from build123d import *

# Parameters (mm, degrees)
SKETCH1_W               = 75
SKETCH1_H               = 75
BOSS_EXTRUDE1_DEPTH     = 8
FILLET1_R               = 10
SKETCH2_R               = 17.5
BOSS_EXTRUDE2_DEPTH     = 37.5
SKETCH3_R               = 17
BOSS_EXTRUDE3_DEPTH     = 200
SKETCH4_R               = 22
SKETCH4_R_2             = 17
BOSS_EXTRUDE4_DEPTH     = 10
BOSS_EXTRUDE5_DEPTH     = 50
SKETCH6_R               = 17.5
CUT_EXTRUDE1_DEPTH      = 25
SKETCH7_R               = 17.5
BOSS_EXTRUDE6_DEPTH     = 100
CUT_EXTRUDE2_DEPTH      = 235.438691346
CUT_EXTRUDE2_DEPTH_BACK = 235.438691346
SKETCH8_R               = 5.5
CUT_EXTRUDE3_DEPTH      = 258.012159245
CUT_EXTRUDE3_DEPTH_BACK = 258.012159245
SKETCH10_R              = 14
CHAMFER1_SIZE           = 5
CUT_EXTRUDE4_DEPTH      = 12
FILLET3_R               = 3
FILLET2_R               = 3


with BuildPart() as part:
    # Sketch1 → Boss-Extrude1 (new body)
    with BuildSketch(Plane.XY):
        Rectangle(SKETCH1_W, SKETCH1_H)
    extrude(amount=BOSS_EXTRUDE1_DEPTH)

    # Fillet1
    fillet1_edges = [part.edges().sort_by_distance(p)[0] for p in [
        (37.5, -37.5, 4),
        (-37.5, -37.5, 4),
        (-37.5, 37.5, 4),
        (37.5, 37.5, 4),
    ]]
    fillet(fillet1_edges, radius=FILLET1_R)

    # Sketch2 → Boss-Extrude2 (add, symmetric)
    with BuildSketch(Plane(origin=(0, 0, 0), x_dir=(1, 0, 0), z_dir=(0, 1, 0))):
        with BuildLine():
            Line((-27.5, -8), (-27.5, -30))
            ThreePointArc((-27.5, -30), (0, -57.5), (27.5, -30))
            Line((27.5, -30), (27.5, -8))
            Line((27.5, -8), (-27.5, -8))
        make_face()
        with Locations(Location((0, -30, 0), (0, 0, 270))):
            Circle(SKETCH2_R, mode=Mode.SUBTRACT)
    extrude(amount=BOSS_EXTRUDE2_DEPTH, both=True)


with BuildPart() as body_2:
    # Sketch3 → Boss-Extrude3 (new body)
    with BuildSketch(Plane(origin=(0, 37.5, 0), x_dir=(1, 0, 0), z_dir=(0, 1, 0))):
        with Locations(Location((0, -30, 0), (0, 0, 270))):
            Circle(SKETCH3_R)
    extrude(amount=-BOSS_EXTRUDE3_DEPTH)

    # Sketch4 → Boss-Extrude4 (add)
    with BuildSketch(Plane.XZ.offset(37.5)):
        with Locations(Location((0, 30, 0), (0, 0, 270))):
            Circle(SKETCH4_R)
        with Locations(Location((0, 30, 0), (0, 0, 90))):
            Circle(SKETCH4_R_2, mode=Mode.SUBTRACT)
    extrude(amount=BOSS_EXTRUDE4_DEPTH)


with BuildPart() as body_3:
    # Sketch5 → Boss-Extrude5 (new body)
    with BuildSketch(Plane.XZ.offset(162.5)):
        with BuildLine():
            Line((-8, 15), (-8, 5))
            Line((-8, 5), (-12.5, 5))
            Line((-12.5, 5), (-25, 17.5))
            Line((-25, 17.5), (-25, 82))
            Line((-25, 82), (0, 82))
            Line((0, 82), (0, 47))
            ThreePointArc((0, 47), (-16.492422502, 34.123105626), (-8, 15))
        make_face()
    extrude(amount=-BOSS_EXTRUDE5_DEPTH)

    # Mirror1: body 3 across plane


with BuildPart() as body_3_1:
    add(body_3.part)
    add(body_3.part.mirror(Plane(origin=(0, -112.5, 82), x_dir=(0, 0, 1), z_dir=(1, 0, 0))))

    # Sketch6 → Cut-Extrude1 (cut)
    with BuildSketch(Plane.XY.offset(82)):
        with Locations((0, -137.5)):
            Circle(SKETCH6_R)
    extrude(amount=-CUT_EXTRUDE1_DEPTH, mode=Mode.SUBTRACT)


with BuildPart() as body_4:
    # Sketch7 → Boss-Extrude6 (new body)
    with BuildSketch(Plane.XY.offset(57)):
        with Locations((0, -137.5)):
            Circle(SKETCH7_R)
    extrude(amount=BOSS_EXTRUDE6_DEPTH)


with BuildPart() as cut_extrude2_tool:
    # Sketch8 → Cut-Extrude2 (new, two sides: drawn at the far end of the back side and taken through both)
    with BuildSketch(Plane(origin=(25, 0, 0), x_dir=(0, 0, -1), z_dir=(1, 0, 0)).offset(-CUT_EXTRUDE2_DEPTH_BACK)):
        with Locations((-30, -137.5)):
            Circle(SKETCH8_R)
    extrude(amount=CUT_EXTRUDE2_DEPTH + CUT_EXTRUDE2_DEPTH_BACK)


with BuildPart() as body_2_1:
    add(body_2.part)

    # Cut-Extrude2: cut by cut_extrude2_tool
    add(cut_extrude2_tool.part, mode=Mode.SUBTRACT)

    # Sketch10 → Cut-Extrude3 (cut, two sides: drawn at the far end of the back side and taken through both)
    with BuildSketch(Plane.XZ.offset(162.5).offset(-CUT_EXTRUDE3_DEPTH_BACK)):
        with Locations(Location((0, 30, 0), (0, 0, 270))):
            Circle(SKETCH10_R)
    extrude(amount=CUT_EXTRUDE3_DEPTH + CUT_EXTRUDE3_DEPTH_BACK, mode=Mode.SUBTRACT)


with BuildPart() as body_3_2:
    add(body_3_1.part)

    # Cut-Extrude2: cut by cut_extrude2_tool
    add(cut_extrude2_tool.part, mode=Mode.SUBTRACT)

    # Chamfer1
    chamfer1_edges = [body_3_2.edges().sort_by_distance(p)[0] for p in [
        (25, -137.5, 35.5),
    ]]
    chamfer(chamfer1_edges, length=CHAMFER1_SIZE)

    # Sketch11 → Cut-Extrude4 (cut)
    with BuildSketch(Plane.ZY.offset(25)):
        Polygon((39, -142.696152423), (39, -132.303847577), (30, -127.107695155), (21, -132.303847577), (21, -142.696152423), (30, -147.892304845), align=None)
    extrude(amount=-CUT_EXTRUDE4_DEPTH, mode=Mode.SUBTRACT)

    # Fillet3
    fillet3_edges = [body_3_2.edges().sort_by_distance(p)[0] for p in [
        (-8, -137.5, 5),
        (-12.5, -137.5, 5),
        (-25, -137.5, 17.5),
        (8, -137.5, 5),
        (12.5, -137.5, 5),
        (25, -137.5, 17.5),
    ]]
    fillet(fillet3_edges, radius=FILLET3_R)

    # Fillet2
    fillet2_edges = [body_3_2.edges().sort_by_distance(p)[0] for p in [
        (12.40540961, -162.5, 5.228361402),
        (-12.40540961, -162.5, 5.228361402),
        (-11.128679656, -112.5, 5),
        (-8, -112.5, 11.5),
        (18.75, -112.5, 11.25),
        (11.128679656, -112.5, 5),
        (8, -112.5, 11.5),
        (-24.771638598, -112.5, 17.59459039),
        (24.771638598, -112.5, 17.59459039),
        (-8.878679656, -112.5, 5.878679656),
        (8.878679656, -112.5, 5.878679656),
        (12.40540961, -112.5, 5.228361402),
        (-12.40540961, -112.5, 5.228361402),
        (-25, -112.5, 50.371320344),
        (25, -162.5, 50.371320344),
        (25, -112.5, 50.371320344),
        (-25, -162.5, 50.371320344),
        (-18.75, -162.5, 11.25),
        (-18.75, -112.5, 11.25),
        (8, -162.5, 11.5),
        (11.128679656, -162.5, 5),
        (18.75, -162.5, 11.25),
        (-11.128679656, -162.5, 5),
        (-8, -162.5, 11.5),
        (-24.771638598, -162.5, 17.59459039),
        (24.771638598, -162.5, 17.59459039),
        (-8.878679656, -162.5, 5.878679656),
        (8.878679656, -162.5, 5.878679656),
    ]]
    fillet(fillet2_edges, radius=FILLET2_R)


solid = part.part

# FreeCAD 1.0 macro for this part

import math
import FreeCAD as App
import Part
import Sketcher
Q = App.Units.Quantity


def edges_at(feature, points):
    """Names of the edges that pass closest to the given points."""
    edges = feature.Shape.Edges
    near = lambda p: min(range(len(edges)), key=lambda i: edges[i].distToShape(Part.Vertex(*p))[0])
    return sorted({f"Edge{near(p) + 1}" for p in points})


def add_polygon(sketch, points):
    """Adds a closed chain of lines whose ends are joined by coincident constraints."""
    first, n = sketch.GeometryCount, len(points)
    for a, b in zip(points, points[1:] + points[:1]):
        sketch.addGeometry(Part.LineSegment(App.Vector(*a, 0), App.Vector(*b, 0)), False)
    for i in range(n):
        sketch.addConstraint(Sketcher.Constraint("Coincident", first + i, 2, first + (i + 1) % n, 1))

doc = App.newDocument("Part")
body = doc.addObject("PartDesign::Body", "Body")

# Sketch on XY plane
sketch1 = doc.addObject("Sketcher::SketchObject", "Sketch")
body.addObject(sketch1)
sketch1.AttachmentSupport = (doc.XY_Plane, [""])
sketch1.MapMode = "FlatFace"
add_polygon(sketch1, [(-37.5, 37.5), (-37.5, -37.5), (37.5, -37.5), (37.5, 37.5)])  # lines 0-3
sketch1.addConstraint([
    Sketcher.Constraint("Vertical", 0),
    Sketcher.Constraint("Horizontal", 1),
    Sketcher.Constraint("Vertical", 2),
    Sketcher.Constraint("Horizontal", 3),
    Sketcher.Constraint("Symmetric", 0, 2, 2, 2, -1, 1),
    Sketcher.Constraint("Equal", 3, 0),
    Sketcher.Constraint("DistanceX", 1, 1, 1, 2, Q("75 mm")),
])
pad1 = doc.addObject("PartDesign::Pad", "Pad")
body.addObject(pad1)
pad1.Profile = sketch1
pad1.Length = 8
doc.recompute()

fillet = doc.addObject("PartDesign::Fillet", "Fillet")
body.addObject(fillet)
fillet.Base = (pad1, edges_at(pad1, [
    (37.5, -37.5, 4),
    (-37.5, -37.5, 4),
    (-37.5, 37.5, 4),
    (37.5, 37.5, 4),
]))
fillet.Radius = 10

# Sketch on XZ plane
sketch2 = doc.addObject("Sketcher::SketchObject", "Sketch001")
body.addObject(sketch2)
sketch2.AttachmentSupport = (doc.XZ_Plane, [""])
sketch2.MapMode = "FlatFace"
sketch2.addGeometry([
    Part.LineSegment(App.Vector(-27.5, 8, 0), App.Vector(-27.5, 30, 0)),  # 0
    Part.ArcOfCircle(Part.Circle(App.Vector(0, 30, 0), App.Vector(0, 0, 1), 27.5), math.radians(0), math.radians(180)),  # 1
    Part.LineSegment(App.Vector(27.5, 30, 0), App.Vector(27.5, 8, 0)),  # 2
    Part.LineSegment(App.Vector(27.5, 8, 0), App.Vector(-27.5, 8, 0)),  # 3
    Part.Circle(App.Vector(0, 30, 0), App.Vector(0, 0, 1), 17.5),  # 4
], False)
sketch2.addConstraint([
    Sketcher.Constraint("Tangent", 0, 2, 1, 2),
    Sketcher.Constraint("Tangent", 1, 1, 2, 1),
    Sketcher.Constraint("Coincident", 2, 2, 3, 1),
    Sketcher.Constraint("Coincident", 3, 2, 0, 1),
    Sketcher.Constraint("Vertical", 0),
    Sketcher.Constraint("Vertical", 2),
    Sketcher.Constraint("Horizontal", 3),
    Sketcher.Constraint("Coincident", 4, 3, 1, 3),
    Sketcher.Constraint("PointOnObject", 1, 3, -2),
    Sketcher.Constraint("Diameter", 4, Q("35 mm")),
    Sketcher.Constraint("Radius", 1, Q("27.5 mm")),
    Sketcher.Constraint("DistanceY", 0, 1, 0, 2, Q("22 mm")),
    Sketcher.Constraint("DistanceY", -1, 1, 1, 3, Q("30 mm")),
])
pad2 = doc.addObject("PartDesign::Pad", "Pad001")
body.addObject(pad2)
pad2.Profile = sketch2
pad2.Length = 75
pad2.Midplane = True
body2 = doc.addObject("PartDesign::Body", "Body001")

# Sketch on XZ plane
sketch3 = doc.addObject("Sketcher::SketchObject", "Sketch002")
body2.addObject(sketch3)
sketch3.AttachmentSupport = (doc.getObject("XZ_Plane001"), [""])
sketch3.MapMode = "FlatFace"
sketch3.AttachmentOffset = App.Placement(App.Vector(0, 0, -37.5), App.Rotation())
sketch3.addGeometry(Part.Circle(App.Vector(0, 30, 0), App.Vector(0, 0, 1), 17), False)
sketch3.addConstraint([
    Sketcher.Constraint("PointOnObject", 0, 3, -2),
    Sketcher.Constraint("Diameter", 0, Q("34 mm")),
    Sketcher.Constraint("DistanceY", -1, 1, 0, 3, Q("30 mm")),
])
pad3 = doc.addObject("PartDesign::Pad", "Pad002")
body2.addObject(pad3)
pad3.Profile = sketch3
pad3.Length = 200

# Sketch on XZ plane
sketch4 = doc.addObject("Sketcher::SketchObject", "Sketch003")
body2.addObject(sketch4)
sketch4.AttachmentSupport = (doc.getObject("XZ_Plane001"), [""])
sketch4.MapMode = "FlatFace"
sketch4.AttachmentOffset = App.Placement(App.Vector(0, 0, 37.5), App.Rotation())
sketch4.addGeometry([
    Part.Circle(App.Vector(0, 30, 0), App.Vector(0, 0, 1), 22),
    Part.Circle(App.Vector(0, 30, 0), App.Vector(0, 0, 1), 17),
], False)
sketch4.addConstraint([
    Sketcher.Constraint("Coincident", 1, 3, 0, 3),
    Sketcher.Constraint("PointOnObject", 0, 3, -2),
    Sketcher.Constraint("Diameter", 0, Q("44 mm")),
    Sketcher.Constraint("Diameter", 1, Q("34 mm")),
    Sketcher.Constraint("DistanceY", -1, 1, 0, 3, Q("30 mm")),
])
pad4 = doc.addObject("PartDesign::Pad", "Pad003")
body2.addObject(pad4)
pad4.Profile = sketch4
pad4.Length = 10
body3 = doc.addObject("PartDesign::Body", "Body002")

# Sketch on XZ plane
sketch5 = doc.addObject("Sketcher::SketchObject", "Sketch004")
body3.addObject(sketch5)
sketch5.AttachmentSupport = (doc.getObject("XZ_Plane002"), [""])
sketch5.MapMode = "FlatFace"
sketch5.AttachmentOffset = App.Placement(App.Vector(0, 0, 162.5), App.Rotation())
sketch5.addGeometry([
    Part.LineSegment(App.Vector(-8, 5, 0), App.Vector(-8, 15, 0)),  # 0
    Part.ArcOfCircle(Part.Circle(App.Vector(0, 30, 0), App.Vector(0, 0, 1), 17), math.radians(90), math.radians(241.927513)),  # 1
    Part.LineSegment(App.Vector(0, 47, 0), App.Vector(0, 82, 0)),  # 2
    Part.LineSegment(App.Vector(0, 82, 0), App.Vector(-25, 82, 0)),  # 3
    Part.LineSegment(App.Vector(-25, 82, 0), App.Vector(-25, 17.5, 0)),  # 4
    Part.LineSegment(App.Vector(-25, 17.5, 0), App.Vector(-12.5, 5, 0)),  # 5
    Part.LineSegment(App.Vector(-12.5, 5, 0), App.Vector(-8, 5, 0)),  # 6
], False)
sketch5.addConstraint([
    Sketcher.Constraint("Coincident", 0, 2, 1, 2),
    Sketcher.Constraint("Coincident", 1, 1, 2, 1),
    Sketcher.Constraint("Coincident", 2, 2, 3, 1),
    Sketcher.Constraint("Coincident", 3, 2, 4, 1),
    Sketcher.Constraint("Coincident", 4, 2, 5, 1),
    Sketcher.Constraint("Coincident", 5, 2, 6, 1),
    Sketcher.Constraint("Coincident", 6, 2, 0, 1),
    Sketcher.Constraint("Vertical", 0),
    Sketcher.Constraint("Vertical", 2),
    Sketcher.Constraint("Horizontal", 3),
    Sketcher.Constraint("Vertical", 4),
    Sketcher.Constraint("Horizontal", 6),
    Sketcher.Constraint("PointOnObject", 1, 3, -2),
    Sketcher.Constraint("PointOnObject", 1, 1, -2),
    Sketcher.Constraint("Radius", 1, Q("17 mm")),
    Sketcher.Constraint("DistanceX", 3, 2, 3, 1, Q("25 mm")),
    Sketcher.Constraint("DistanceY", 0, 1, 0, 2, Q("10 mm")),
    Sketcher.Constraint("DistanceY", 2, 1, 2, 2, Q("35 mm")),
    Sketcher.Constraint("Angle", 5, Q("-45 deg")),
    Sketcher.Constraint("DistanceX", 6, 1, 6, 2, Q("4.5 mm")),
    Sketcher.Constraint("DistanceY", 4, 2, 4, 1, Q("64.5 mm")),
    Sketcher.Constraint("DistanceY", -1, 1, 1, 3, Q("30 mm")),
])
pad5 = doc.addObject("PartDesign::Pad", "Pad004")
body3.addObject(pad5)
pad5.Profile = sketch5
pad5.Length = 50
pad5.Reversed = True
body4 = doc.addObject("PartDesign::Body", "Body003")
doc.recompute()

body4.BaseFeature = body3
doc.recompute()

mirroring = doc.addObject("Part::Mirroring", "Mirroring")
mirroring.Source = body3
mirroring.Base = App.Vector(0, -112.5, 82)
mirroring.Normal = App.Vector(1, 0, 0)
body5 = doc.addObject("PartDesign::Body", "Body004")
body5.BaseFeature = mirroring
boolean = doc.addObject("PartDesign::Boolean", "Boolean")
body4.addObject(boolean)
boolean.Type = "Fuse"
boolean.addObjects([body5])
doc.recompute()

# Sketch on XY plane
sketch6 = doc.addObject("Sketcher::SketchObject", "Sketch005")
body4.addObject(sketch6)
sketch6.AttachmentSupport = (doc.getObject("XY_Plane003"), [""])
sketch6.MapMode = "FlatFace"
sketch6.AttachmentOffset = App.Placement(App.Vector(0, 0, 82), App.Rotation())
sketch6.addGeometry(Part.Circle(App.Vector(0, -137.5, 0), App.Vector(0, 0, 1), 17.5), False)
sketch6.addConstraint([
    Sketcher.Constraint("PointOnObject", 0, 3, -2),
    Sketcher.Constraint("Diameter", 0, Q("35 mm")),
    Sketcher.Constraint("DistanceY", 0, 3, -1, 1, Q("137.5 mm")),
])
pocket1 = doc.addObject("PartDesign::Pocket", "Pocket")
body4.addObject(pocket1)
pocket1.Profile = sketch6
pocket1.Length = 25
body6 = doc.addObject("PartDesign::Body", "Body005")

# Sketch on XY plane
sketch7 = doc.addObject("Sketcher::SketchObject", "Sketch006")
body6.addObject(sketch7)
sketch7.AttachmentSupport = (doc.getObject("XY_Plane005"), [""])
sketch7.MapMode = "FlatFace"
sketch7.AttachmentOffset = App.Placement(App.Vector(0, 0, 57), App.Rotation())
sketch7.addGeometry(Part.Circle(App.Vector(0, -137.5, 0), App.Vector(0, 0, 1), 17.5), False)
sketch7.addConstraint([
    Sketcher.Constraint("PointOnObject", 0, 3, -2),
    Sketcher.Constraint("Diameter", 0, Q("35 mm")),
    Sketcher.Constraint("DistanceY", 0, 3, -1, 1, Q("137.5 mm")),
])
pad6 = doc.addObject("PartDesign::Pad", "Pad005")
body6.addObject(pad6)
pad6.Profile = sketch7
pad6.Length = 100
body7 = doc.addObject("PartDesign::Body", "Body006")

# Sketch on YZ plane
sketch8 = doc.addObject("Sketcher::SketchObject", "Sketch007")
body7.addObject(sketch8)
sketch8.AttachmentSupport = (doc.getObject("YZ_Plane006"), [""])
sketch8.MapMode = "FlatFace"
sketch8.AttachmentOffset = App.Placement(App.Vector(0, 0, 25), App.Rotation())
sketch8.addGeometry(Part.Circle(App.Vector(-137.5, 30, 0), App.Vector(0, 0, 1), 5.5), False)
sketch8.addConstraint([
    Sketcher.Constraint("Diameter", 0, Q("11 mm")),
    Sketcher.Constraint("DistanceY", -1, 1, 0, 3, Q("30 mm")),
    Sketcher.Constraint("DistanceX", 0, 3, -1, 1, Q("137.5 mm")),
])
pad7 = doc.addObject("PartDesign::Pad", "Pad006")
body7.addObject(pad7)
pad7.Profile = sketch8
pad7.Type = "TwoLengths"
pad7.Length = 235.438691
pad7.Length2 = 235.438691
doc.recompute()

body8 = doc.addObject("PartDesign::Body", "Body007")
body8.BaseFeature = body7
boolean2 = doc.addObject("PartDesign::Boolean", "Boolean001")
body2.addObject(boolean2)
boolean2.Type = "Cut"
boolean2.addObjects([body8])
doc.recompute()

# Sketch on XZ plane
sketch9 = doc.addObject("Sketcher::SketchObject", "Sketch008")
body2.addObject(sketch9)
sketch9.AttachmentSupport = (doc.getObject("XZ_Plane001"), [""])
sketch9.MapMode = "FlatFace"
sketch9.AttachmentOffset = App.Placement(App.Vector(0, 0, 162.5), App.Rotation())
sketch9.addGeometry(Part.Circle(App.Vector(0, 30, 0), App.Vector(0, 0, 1), 14), False)
sketch9.addConstraint([
    Sketcher.Constraint("PointOnObject", 0, 3, -2),
    Sketcher.Constraint("Diameter", 0, Q("28 mm")),
    Sketcher.Constraint("DistanceY", -1, 1, 0, 3, Q("30 mm")),
])
pocket2 = doc.addObject("PartDesign::Pocket", "Pocket001")
body2.addObject(pocket2)
pocket2.Profile = sketch9
pocket2.Type = "ThroughAll"
pocket2.Midplane = True
doc.recompute()

boolean3 = doc.addObject("PartDesign::Boolean", "Boolean002")
body4.addObject(boolean3)
boolean3.Type = "Cut"
boolean3.addObjects([body7])
doc.recompute()

chamfer = doc.addObject("PartDesign::Chamfer", "Chamfer")
body4.addObject(chamfer)
chamfer.Base = (boolean3, edges_at(boolean3, [(25, -137.5, 35.5)]))
chamfer.Size = 5

# Sketch on YZ plane
sketch10 = doc.addObject("Sketcher::SketchObject", "Sketch009")
body4.addObject(sketch10)
sketch10.AttachmentSupport = (doc.getObject("YZ_Plane003"), [""])
sketch10.MapMode = "FlatFace"
sketch10.AttachmentOffset = App.Placement(App.Vector(0, 0, -25), App.Rotation())
add_polygon(sketch10, [(-142.696152, 39), (-132.303848, 39), (-127.107695, 30), (-132.303848, 21), (-142.696152, 21), (-147.892305, 30)])  # lines 0-5
sketch10.addConstraint([
    Sketcher.Constraint("Horizontal", 0),
    Sketcher.Constraint("Horizontal", 3),
    Sketcher.Constraint("Parallel", 1, 4),
    Sketcher.Constraint("Parallel", 2, 5),
    Sketcher.Constraint("Horizontal", 1, 2, 4, 2),
    Sketcher.Constraint("Vertical", 0, 2, 2, 2),
    Sketcher.Constraint("Vertical", 3, 2, 5, 2),
    Sketcher.Constraint("Angle", 1, Q("-60 deg")),
    Sketcher.Constraint("DistanceY", -1, 1, 0, 2, Q("39 mm")),
    Sketcher.Constraint("DistanceY", -1, 1, 1, 2, Q("30 mm")),
    Sketcher.Constraint("DistanceX", 0, 1, 0, 2, Q("10.392305 mm")),
    Sketcher.Constraint("DistanceX", 0, 2, -1, 1, Q("132.303848 mm")),
])
pocket3 = doc.addObject("PartDesign::Pocket", "Pocket002")
body4.addObject(pocket3)
pocket3.Profile = sketch10
pocket3.Length = 12
pocket3.Reversed = True
doc.recompute()

fillet2 = doc.addObject("PartDesign::Fillet", "Fillet001")
body4.addObject(fillet2)
fillet2.Base = (pocket3, edges_at(pocket3, [
    (-8, -137.5, 5),
    (-12.5, -137.5, 5),
    (-25, -137.5, 17.5),
    (8, -137.5, 5),
    (12.5, -137.5, 5),
    (25, -137.5, 17.5),
]))
fillet2.Radius = 3
doc.recompute()

fillet3 = doc.addObject("PartDesign::Fillet", "Fillet002")
body4.addObject(fillet3)
fillet3.Base = (fillet2, edges_at(fillet2, [
    (12.405, -162.5, 5.228),
    (-12.405, -162.5, 5.228),
    (-11.129, -112.5, 5),
    (-8, -112.5, 11.5),
    (18.75, -112.5, 11.25),
    (11.129, -112.5, 5),
    (8, -112.5, 11.5),
    (-24.772, -112.5, 17.595),
    (24.772, -112.5, 17.595),
    (-8.879, -112.5, 5.879),
    (8.879, -112.5, 5.879),
    (12.405, -112.5, 5.228),
    (-12.405, -112.5, 5.228),
    (-25, -112.5, 50.371),
    (25, -162.5, 50.371),
    (25, -112.5, 50.371),
    (-25, -162.5, 50.371),
    (-18.75, -162.5, 11.25),
    (-18.75, -112.5, 11.25),
    (8, -162.5, 11.5),
    (11.129, -162.5, 5),
    (18.75, -162.5, 11.25),
    (-11.129, -162.5, 5),
    (-8, -162.5, 11.5),
    (-24.772, -162.5, 17.595),
    (24.772, -162.5, 17.595),
    (-8.879, -162.5, 5.879),
    (8.879, -162.5, 5.879),
]))
fillet3.Radius = 3
body2.Visibility = False
body4.Visibility = False
body6.Visibility = False
mirroring.Visibility = False

doc.recompute()
